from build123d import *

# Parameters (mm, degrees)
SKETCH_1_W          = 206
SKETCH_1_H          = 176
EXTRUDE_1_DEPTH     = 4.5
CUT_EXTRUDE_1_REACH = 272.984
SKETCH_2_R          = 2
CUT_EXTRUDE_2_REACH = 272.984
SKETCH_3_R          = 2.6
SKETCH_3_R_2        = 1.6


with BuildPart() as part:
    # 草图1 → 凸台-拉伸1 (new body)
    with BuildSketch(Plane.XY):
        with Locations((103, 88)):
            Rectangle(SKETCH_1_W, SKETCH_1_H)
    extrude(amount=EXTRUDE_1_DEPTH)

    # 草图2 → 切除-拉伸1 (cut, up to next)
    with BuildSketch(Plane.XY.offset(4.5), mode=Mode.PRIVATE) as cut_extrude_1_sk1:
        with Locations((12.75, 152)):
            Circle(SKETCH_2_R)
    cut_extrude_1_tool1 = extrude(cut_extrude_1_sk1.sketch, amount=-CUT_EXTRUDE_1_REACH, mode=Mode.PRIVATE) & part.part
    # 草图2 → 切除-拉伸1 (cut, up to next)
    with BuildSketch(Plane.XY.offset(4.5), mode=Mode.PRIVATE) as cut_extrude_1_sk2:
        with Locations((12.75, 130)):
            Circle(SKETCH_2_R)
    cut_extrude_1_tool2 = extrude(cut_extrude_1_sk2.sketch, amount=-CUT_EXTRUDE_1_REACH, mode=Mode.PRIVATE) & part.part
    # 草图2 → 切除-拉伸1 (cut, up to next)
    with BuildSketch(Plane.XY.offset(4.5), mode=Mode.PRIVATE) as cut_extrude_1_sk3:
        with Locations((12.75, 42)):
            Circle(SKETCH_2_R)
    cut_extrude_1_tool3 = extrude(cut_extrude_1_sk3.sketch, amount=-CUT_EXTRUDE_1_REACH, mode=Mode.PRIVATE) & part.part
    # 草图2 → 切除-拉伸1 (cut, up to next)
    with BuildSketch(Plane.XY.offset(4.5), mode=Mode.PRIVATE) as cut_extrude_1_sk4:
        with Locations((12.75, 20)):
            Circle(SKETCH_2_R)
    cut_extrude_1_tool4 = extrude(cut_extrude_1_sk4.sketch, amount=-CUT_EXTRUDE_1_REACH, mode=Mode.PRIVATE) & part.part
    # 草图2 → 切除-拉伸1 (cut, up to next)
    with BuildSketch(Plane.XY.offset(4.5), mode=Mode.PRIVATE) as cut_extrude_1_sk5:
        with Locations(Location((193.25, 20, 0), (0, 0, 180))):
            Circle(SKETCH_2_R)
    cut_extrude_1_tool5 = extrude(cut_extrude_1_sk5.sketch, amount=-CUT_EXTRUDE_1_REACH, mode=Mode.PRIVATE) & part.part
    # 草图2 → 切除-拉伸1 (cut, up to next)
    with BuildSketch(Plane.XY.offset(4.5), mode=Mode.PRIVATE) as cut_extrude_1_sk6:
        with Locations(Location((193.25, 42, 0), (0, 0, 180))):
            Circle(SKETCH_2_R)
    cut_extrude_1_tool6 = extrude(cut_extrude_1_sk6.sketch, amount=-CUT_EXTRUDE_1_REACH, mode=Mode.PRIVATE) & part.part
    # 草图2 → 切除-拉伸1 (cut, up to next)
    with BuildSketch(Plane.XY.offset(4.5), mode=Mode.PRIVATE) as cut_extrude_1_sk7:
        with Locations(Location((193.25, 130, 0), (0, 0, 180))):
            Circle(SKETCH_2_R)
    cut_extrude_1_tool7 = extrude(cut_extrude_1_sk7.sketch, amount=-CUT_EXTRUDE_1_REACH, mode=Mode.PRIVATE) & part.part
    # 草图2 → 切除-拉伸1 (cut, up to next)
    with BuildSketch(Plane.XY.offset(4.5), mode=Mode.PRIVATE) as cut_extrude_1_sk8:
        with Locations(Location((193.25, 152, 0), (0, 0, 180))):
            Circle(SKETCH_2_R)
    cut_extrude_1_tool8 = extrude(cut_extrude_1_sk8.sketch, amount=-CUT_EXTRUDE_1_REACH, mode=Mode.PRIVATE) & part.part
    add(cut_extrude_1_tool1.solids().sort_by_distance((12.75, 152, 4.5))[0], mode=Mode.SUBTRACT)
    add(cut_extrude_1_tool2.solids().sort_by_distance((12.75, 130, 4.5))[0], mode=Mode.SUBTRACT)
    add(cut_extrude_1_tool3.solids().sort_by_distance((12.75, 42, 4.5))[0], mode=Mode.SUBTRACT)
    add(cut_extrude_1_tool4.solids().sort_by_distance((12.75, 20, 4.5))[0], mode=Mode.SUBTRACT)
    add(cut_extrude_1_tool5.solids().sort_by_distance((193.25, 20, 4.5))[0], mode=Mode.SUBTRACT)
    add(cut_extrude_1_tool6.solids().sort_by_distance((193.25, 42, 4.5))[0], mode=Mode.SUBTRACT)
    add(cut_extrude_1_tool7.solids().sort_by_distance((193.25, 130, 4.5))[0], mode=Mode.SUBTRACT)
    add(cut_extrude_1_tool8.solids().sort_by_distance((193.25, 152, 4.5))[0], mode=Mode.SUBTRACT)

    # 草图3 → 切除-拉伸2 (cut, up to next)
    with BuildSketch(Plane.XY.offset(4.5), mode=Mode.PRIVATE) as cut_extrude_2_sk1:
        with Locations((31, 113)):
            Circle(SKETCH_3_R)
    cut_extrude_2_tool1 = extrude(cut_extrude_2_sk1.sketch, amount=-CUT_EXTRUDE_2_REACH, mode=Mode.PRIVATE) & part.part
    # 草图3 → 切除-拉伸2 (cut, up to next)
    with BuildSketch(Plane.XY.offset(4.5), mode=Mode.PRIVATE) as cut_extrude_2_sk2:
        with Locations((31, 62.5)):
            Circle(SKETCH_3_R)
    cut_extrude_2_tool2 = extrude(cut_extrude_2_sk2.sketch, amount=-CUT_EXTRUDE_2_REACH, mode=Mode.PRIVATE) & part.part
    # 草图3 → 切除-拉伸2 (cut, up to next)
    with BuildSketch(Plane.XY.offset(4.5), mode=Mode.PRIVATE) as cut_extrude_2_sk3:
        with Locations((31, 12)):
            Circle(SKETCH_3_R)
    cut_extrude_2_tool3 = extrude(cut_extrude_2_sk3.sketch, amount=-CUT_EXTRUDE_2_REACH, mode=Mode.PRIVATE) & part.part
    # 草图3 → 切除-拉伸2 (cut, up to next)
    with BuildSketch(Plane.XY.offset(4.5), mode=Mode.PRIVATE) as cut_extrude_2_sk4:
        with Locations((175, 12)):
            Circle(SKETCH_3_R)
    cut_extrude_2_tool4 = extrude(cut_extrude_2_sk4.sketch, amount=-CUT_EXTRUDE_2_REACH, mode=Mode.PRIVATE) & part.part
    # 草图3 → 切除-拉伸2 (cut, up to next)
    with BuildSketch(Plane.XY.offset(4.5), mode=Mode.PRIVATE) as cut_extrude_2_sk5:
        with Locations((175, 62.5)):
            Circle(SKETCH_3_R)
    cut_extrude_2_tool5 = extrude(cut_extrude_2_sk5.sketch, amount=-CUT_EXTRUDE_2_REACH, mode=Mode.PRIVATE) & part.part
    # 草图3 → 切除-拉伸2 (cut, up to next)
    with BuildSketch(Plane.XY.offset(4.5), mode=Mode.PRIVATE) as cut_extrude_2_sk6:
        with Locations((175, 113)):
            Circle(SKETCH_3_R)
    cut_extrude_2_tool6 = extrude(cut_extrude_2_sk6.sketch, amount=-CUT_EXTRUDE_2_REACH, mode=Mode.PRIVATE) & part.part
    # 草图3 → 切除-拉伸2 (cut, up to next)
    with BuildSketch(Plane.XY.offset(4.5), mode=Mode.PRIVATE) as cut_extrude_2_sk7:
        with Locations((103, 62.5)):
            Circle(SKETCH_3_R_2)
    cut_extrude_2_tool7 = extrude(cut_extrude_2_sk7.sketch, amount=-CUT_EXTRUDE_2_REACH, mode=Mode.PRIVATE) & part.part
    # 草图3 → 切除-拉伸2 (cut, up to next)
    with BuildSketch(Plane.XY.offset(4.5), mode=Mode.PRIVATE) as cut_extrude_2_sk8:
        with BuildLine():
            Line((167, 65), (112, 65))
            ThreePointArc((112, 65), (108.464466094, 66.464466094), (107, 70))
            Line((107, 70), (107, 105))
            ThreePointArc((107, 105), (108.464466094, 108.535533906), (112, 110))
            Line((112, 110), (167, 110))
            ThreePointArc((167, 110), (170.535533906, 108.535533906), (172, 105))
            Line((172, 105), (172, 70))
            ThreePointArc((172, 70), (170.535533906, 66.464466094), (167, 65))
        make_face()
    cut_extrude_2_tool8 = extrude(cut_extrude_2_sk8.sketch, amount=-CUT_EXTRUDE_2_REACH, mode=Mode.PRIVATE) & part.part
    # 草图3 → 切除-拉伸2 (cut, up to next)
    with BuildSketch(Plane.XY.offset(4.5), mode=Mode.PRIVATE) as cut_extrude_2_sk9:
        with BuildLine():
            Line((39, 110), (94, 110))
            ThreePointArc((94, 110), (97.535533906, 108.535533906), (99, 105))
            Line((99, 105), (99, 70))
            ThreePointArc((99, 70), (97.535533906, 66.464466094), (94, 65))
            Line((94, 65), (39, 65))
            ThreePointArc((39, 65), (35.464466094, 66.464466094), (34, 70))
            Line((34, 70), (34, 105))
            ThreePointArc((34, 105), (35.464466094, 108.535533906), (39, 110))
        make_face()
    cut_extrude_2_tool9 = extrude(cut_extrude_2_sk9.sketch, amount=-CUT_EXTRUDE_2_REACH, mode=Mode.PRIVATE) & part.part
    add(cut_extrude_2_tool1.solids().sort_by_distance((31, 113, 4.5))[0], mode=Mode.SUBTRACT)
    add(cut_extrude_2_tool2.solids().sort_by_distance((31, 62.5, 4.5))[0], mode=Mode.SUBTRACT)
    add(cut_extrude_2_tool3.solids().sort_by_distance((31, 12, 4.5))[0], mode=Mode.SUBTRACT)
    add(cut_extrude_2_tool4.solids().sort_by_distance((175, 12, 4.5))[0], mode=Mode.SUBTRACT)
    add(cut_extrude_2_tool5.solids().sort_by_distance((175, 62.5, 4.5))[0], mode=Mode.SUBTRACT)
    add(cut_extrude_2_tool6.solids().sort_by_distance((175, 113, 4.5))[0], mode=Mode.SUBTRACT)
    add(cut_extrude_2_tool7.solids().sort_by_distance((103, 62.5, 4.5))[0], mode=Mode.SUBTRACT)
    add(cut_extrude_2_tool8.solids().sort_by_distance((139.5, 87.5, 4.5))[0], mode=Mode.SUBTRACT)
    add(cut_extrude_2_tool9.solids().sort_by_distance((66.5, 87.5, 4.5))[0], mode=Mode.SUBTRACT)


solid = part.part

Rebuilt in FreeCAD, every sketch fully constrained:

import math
import FreeCAD as App
import Part
import Sketcher

V = App.Vector


def add_polygon(sketch, points):
    """Adds a closed chain of lines whose ends are joined by coincident constraints."""
    first, n = sketch.GeometryCount, len(points)
    for a, b in zip(points, points[1:] + points[:1]):
        sketch.addGeometry(Part.LineSegment(App.Vector(*a, 0), App.Vector(*b, 0)), False)
    for i in range(n):
        sketch.addConstraint(Sketcher.Constraint("Coincident", first + i, 2, first + (i + 1) % n, 1))

doc = App.newDocument("Part")
body = doc.addObject("PartDesign::Body", "Body")

sketch1 = doc.addObject("Sketcher::SketchObject", "Sketch")
body.addObject(sketch1)
sketch1.AttachmentSupport = (doc.XY_Plane, [""])
sketch1.MapMode = "FlatFace"
add_polygon(sketch1, [(0, 176), (0, 0), (206, 0), (206, 176)])
sketch1.addConstraint(Sketcher.Constraint("Vertical", 0))
sketch1.addConstraint(Sketcher.Constraint("Horizontal", 1))
sketch1.addConstraint(Sketcher.Constraint("Vertical", 2))
sketch1.addConstraint(Sketcher.Constraint("Horizontal", 3))
sketch1.addConstraint(Sketcher.Constraint("Coincident", 0, 2, -1, 1))
sketch1.addConstraint(Sketcher.Constraint("DistanceX", 1, 1, 1, 2, 206.0))
sketch1.addConstraint(Sketcher.Constraint("DistanceY", 0, 2, 0, 1, 176.0))
pad1 = doc.addObject("PartDesign::Pad", "Pad")
body.addObject(pad1)
pad1.Profile = sketch1
pad1.Length = 4.5

sketch2 = doc.addObject("Sketcher::SketchObject", "Sketch001")
body.addObject(sketch2)
sketch2.AttachmentSupport = (doc.XY_Plane, [""])
sketch2.MapMode = "FlatFace"
sketch2.AttachmentOffset = App.Placement(V(0, 0, 4.5), App.Rotation())
sketch2.addGeometry(Part.Circle(V(12.8, 152, 0), V(0, 0, 1), 2), False)
sketch2.addConstraint(Sketcher.Constraint("Diameter", 0, 4.0))
sketch2.addConstraint(Sketcher.Constraint("DistanceY", -1, 1, 0, 3, 152.0))
sketch2.addConstraint(Sketcher.Constraint("DistanceX", -1, 1, 0, 3, 12.75))
pocket1 = doc.addObject("PartDesign::Pocket", "Pocket")
body.addObject(pocket1)
pocket1.Profile = sketch2
pocket1.Type = "UpToFirst"

sketch3 = doc.addObject("Sketcher::SketchObject", "Sketch002")
body.addObject(sketch3)
sketch3.AttachmentSupport = (doc.XY_Plane, [""])
sketch3.MapMode = "FlatFace"
sketch3.AttachmentOffset = App.Placement(V(0, 0, 4.5), App.Rotation())
sketch3.addGeometry(Part.Circle(V(12.8, 130, 0), V(0, 0, 1), 2), False)
sketch3.addConstraint(Sketcher.Constraint("Diameter", 0, 4.0))
sketch3.addConstraint(Sketcher.Constraint("DistanceY", -1, 1, 0, 3, 130.0))
sketch3.addConstraint(Sketcher.Constraint("DistanceX", -1, 1, 0, 3, 12.75))
pocket2 = doc.addObject("PartDesign::Pocket", "Pocket001")
body.addObject(pocket2)
pocket2.Profile = sketch3
pocket2.Type = "UpToFirst"

sketch4 = doc.addObject("Sketcher::SketchObject", "Sketch003")
body.addObject(sketch4)
sketch4.AttachmentSupport = (doc.XY_Plane, [""])
sketch4.MapMode = "FlatFace"
sketch4.AttachmentOffset = App.Placement(V(0, 0, 4.5), App.Rotation())
sketch4.addGeometry(Part.Circle(V(12.8, 42, 0), V(0, 0, 1), 2), False)
sketch4.addConstraint(Sketcher.Constraint("Diameter", 0, 4.0))
sketch4.addConstraint(Sketcher.Constraint("DistanceY", -1, 1, 0, 3, 42.0))
sketch4.addConstraint(Sketcher.Constraint("DistanceX", -1, 1, 0, 3, 12.75))
pocket3 = doc.addObject("PartDesign::Pocket", "Pocket002")
body.addObject(pocket3)
pocket3.Profile = sketch4
pocket3.Type = "UpToFirst"

sketch5 = doc.addObject("Sketcher::SketchObject", "Sketch004")
body.addObject(sketch5)
sketch5.AttachmentSupport = (doc.XY_Plane, [""])
sketch5.MapMode = "FlatFace"
sketch5.AttachmentOffset = App.Placement(V(0, 0, 4.5), App.Rotation())
sketch5.addGeometry(Part.Circle(V(12.8, 20, 0), V(0, 0, 1), 2), False)
sketch5.addConstraint(Sketcher.Constraint("Diameter", 0, 4.0))
sketch5.addConstraint(Sketcher.Constraint("DistanceY", -1, 1, 0, 3, 20.0))
sketch5.addConstraint(Sketcher.Constraint("DistanceX", -1, 1, 0, 3, 12.75))
pocket4 = doc.addObject("PartDesign::Pocket", "Pocket003")
body.addObject(pocket4)
pocket4.Profile = sketch5
pocket4.Type = "UpToFirst"

sketch6 = doc.addObject("Sketcher::SketchObject", "Sketch005")
body.addObject(sketch6)
sketch6.AttachmentSupport = (doc.XY_Plane, [""])
sketch6.MapMode = "FlatFace"
sketch6.AttachmentOffset = App.Placement(V(0, 0, 4.5), App.Rotation())
sketch6.addGeometry(Part.Circle(V(193.2, 20, 0), V(0, 0, 1), 2), False)
sketch6.addConstraint(Sketcher.Constraint("Diameter", 0, 4.0))
sketch6.addConstraint(Sketcher.Constraint("DistanceY", -1, 1, 0, 3, 20.0))
sketch6.addConstraint(Sketcher.Constraint("DistanceX", -1, 1, 0, 3, 193.25))
pocket5 = doc.addObject("PartDesign::Pocket", "Pocket004")
body.addObject(pocket5)
pocket5.Profile = sketch6
pocket5.Type = "UpToFirst"

sketch7 = doc.addObject("Sketcher::SketchObject", "Sketch006")
body.addObject(sketch7)
sketch7.AttachmentSupport = (doc.XY_Plane, [""])
sketch7.MapMode = "FlatFace"
sketch7.AttachmentOffset = App.Placement(V(0, 0, 4.5), App.Rotation())
sketch7.addGeometry(Part.Circle(V(193.2, 42, 0), V(0, 0, 1), 2), False)
sketch7.addConstraint(Sketcher.Constraint("Diameter", 0, 4.0))
sketch7.addConstraint(Sketcher.Constraint("DistanceY", -1, 1, 0, 3, 42.0))
sketch7.addConstraint(Sketcher.Constraint("DistanceX", -1, 1, 0, 3, 193.25))
pocket6 = doc.addObject("PartDesign::Pocket", "Pocket005")
body.addObject(pocket6)
pocket6.Profile = sketch7
pocket6.Type = "UpToFirst"

sketch8 = doc.addObject("Sketcher::SketchObject", "Sketch007")
body.addObject(sketch8)
sketch8.AttachmentSupport = (doc.XY_Plane, [""])
sketch8.MapMode = "FlatFace"
sketch8.AttachmentOffset = App.Placement(V(0, 0, 4.5), App.Rotation())
sketch8.addGeometry(Part.Circle(V(193.2, 130, 0), V(0, 0, 1), 2), False)
sketch8.addConstraint(Sketcher.Constraint("Diameter", 0, 4.0))
sketch8.addConstraint(Sketcher.Constraint("DistanceY", -1, 1, 0, 3, 130.0))
sketch8.addConstraint(Sketcher.Constraint("DistanceX", -1, 1, 0, 3, 193.25))
pocket7 = doc.addObject("PartDesign::Pocket", "Pocket006")
body.addObject(pocket7)
pocket7.Profile = sketch8
pocket7.Type = "UpToFirst"

sketch9 = doc.addObject("Sketcher::SketchObject", "Sketch008")
body.addObject(sketch9)
sketch9.AttachmentSupport = (doc.XY_Plane, [""])
sketch9.MapMode = "FlatFace"
sketch9.AttachmentOffset = App.Placement(V(0, 0, 4.5), App.Rotation())
sketch9.addGeometry(Part.Circle(V(193.2, 152, 0), V(0, 0, 1), 2), False)
sketch9.addConstraint(Sketcher.Constraint("Diameter", 0, 4.0))
sketch9.addConstraint(Sketcher.Constraint("DistanceY", -1, 1, 0, 3, 152.0))
sketch9.addConstraint(Sketcher.Constraint("DistanceX", -1, 1, 0, 3, 193.25))
pocket8 = doc.addObject("PartDesign::Pocket", "Pocket007")
body.addObject(pocket8)
pocket8.Profile = sketch9
pocket8.Type = "UpToFirst"

sketch10 = doc.addObject("Sketcher::SketchObject", "Sketch009")
body.addObject(sketch10)
sketch10.AttachmentSupport = (doc.XY_Plane, [""])
sketch10.MapMode = "FlatFace"
sketch10.AttachmentOffset = App.Placement(V(0, 0, 4.5), App.Rotation())
sketch10.addGeometry(Part.Circle(V(31, 113, 0), V(0, 0, 1), 2.6), False)
sketch10.addConstraint(Sketcher.Constraint("Diameter", 0, 5.2))
sketch10.addConstraint(Sketcher.Constraint("DistanceX", -1, 1, 0, 3, 31.0))
sketch10.addConstraint(Sketcher.Constraint("DistanceY", -1, 1, 0, 3, 113.0))
pocket9 = doc.addObject("PartDesign::Pocket", "Pocket008")
body.addObject(pocket9)
pocket9.Profile = sketch10
pocket9.Type = "UpToFirst"

sketch11 = doc.addObject("Sketcher::SketchObject", "Sketch010")
body.addObject(sketch11)
sketch11.AttachmentSupport = (doc.XY_Plane, [""])
sketch11.MapMode = "FlatFace"
sketch11.AttachmentOffset = App.Placement(V(0, 0, 4.5), App.Rotation())
sketch11.addGeometry(Part.Circle(V(31, 62.5, 0), V(0, 0, 1), 2.6), False)
sketch11.addConstraint(Sketcher.Constraint("Diameter", 0, 5.2))
sketch11.addConstraint(Sketcher.Constraint("DistanceX", -1, 1, 0, 3, 31.0))
sketch11.addConstraint(Sketcher.Constraint("DistanceY", -1, 1, 0, 3, 62.5))
pocket10 = doc.addObject("PartDesign::Pocket", "Pocket009")
body.addObject(pocket10)
pocket10.Profile = sketch11
pocket10.Type = "UpToFirst"

sketch12 = doc.addObject("Sketcher::SketchObject", "Sketch011")
body.addObject(sketch12)
sketch12.AttachmentSupport = (doc.XY_Plane, [""])
sketch12.MapMode = "FlatFace"
sketch12.AttachmentOffset = App.Placement(V(0, 0, 4.5), App.Rotation())
sketch12.addGeometry(Part.Circle(V(31, 12, 0), V(0, 0, 1), 2.6), False)
sketch12.addConstraint(Sketcher.Constraint("Diameter", 0, 5.2))
sketch12.addConstraint(Sketcher.Constraint("DistanceX", -1, 1, 0, 3, 31.0))
sketch12.addConstraint(Sketcher.Constraint("DistanceY", -1, 1, 0, 3, 12.0))
pocket11 = doc.addObject("PartDesign::Pocket", "Pocket010")
body.addObject(pocket11)
pocket11.Profile = sketch12
pocket11.Type = "UpToFirst"

sketch13 = doc.addObject("Sketcher::SketchObject", "Sketch012")
body.addObject(sketch13)
sketch13.AttachmentSupport = (doc.XY_Plane, [""])
sketch13.MapMode = "FlatFace"
sketch13.AttachmentOffset = App.Placement(V(0, 0, 4.5), App.Rotation())
sketch13.addGeometry(Part.Circle(V(175, 12, 0), V(0, 0, 1), 2.6), False)
sketch13.addConstraint(Sketcher.Constraint("Diameter", 0, 5.2))
sketch13.addConstraint(Sketcher.Constraint("DistanceX", -1, 1, 0, 3, 175.0))
sketch13.addConstraint(Sketcher.Constraint("DistanceY", -1, 1, 0, 3, 12.0))
pocket12 = doc.addObject("PartDesign::Pocket", "Pocket011")
body.addObject(pocket12)
pocket12.Profile = sketch13
pocket12.Type = "UpToFirst"

sketch14 = doc.addObject("Sketcher::SketchObject", "Sketch013")
body.addObject(sketch14)
sketch14.AttachmentSupport = (doc.XY_Plane, [""])
sketch14.MapMode = "FlatFace"
sketch14.AttachmentOffset = App.Placement(V(0, 0, 4.5), App.Rotation())
sketch14.addGeometry(Part.Circle(V(175, 62.5, 0), V(0, 0, 1), 2.6), False)
sketch14.addConstraint(Sketcher.Constraint("Diameter", 0, 5.2))
sketch14.addConstraint(Sketcher.Constraint("DistanceX", -1, 1, 0, 3, 175.0))
sketch14.addConstraint(Sketcher.Constraint("DistanceY", -1, 1, 0, 3, 62.5))
pocket13 = doc.addObject("PartDesign::Pocket", "Pocket012")
body.addObject(pocket13)
pocket13.Profile = sketch14
pocket13.Type = "UpToFirst"

sketch15 = doc.addObject("Sketcher::SketchObject", "Sketch014")
body.addObject(sketch15)
sketch15.AttachmentSupport = (doc.XY_Plane, [""])
sketch15.MapMode = "FlatFace"
sketch15.AttachmentOffset = App.Placement(V(0, 0, 4.5), App.Rotation())
sketch15.addGeometry(Part.Circle(V(175, 113, 0), V(0, 0, 1), 2.6), False)
sketch15.addConstraint(Sketcher.Constraint("Diameter", 0, 5.2))
sketch15.addConstraint(Sketcher.Constraint("DistanceX", -1, 1, 0, 3, 175.0))
sketch15.addConstraint(Sketcher.Constraint("DistanceY", -1, 1, 0, 3, 113.0))
pocket14 = doc.addObject("PartDesign::Pocket", "Pocket013")
body.addObject(pocket14)
pocket14.Profile = sketch15
pocket14.Type = "UpToFirst"

sketch16 = doc.addObject("Sketcher::SketchObject", "Sketch015")
body.addObject(sketch16)
sketch16.AttachmentSupport = (doc.XY_Plane, [""])
sketch16.MapMode = "FlatFace"
sketch16.AttachmentOffset = App.Placement(V(0, 0, 4.5), App.Rotation())
sketch16.addGeometry(Part.Circle(V(103, 62.5, 0), V(0, 0, 1), 1.6), False)
sketch16.addConstraint(Sketcher.Constraint("Diameter", 0, 3.2))
sketch16.addConstraint(Sketcher.Constraint("DistanceX", -1, 1, 0, 3, 103.0))
sketch16.addConstraint(Sketcher.Constraint("DistanceY", -1, 1, 0, 3, 62.5))
pocket15 = doc.addObject("PartDesign::Pocket", "Pocket014")
body.addObject(pocket15)
pocket15.Profile = sketch16
pocket15.Type = "UpToFirst"

sketch17 = doc.addObject("Sketcher::SketchObject", "Sketch016")
body.addObject(sketch17)
sketch17.AttachmentSupport = (doc.XY_Plane, [""])
sketch17.MapMode = "FlatFace"
sketch17.AttachmentOffset = App.Placement(V(0, 0, 4.5), App.Rotation())
sketch17.addGeometry(Part.LineSegment(V(112, 65, 0), V(167, 65, 0)), False)
sketch17.addGeometry(Part.ArcOfCircle(Part.Circle(V(167, 70, 0), V(0, 0, 1), 5), math.radians(-90), math.radians(0)), False)
sketch17.addGeometry(Part.LineSegment(V(172, 70, 0), V(172, 105, 0)), False)
sketch17.addGeometry(Part.ArcOfCircle(Part.Circle(V(167, 105, 0), V(0, 0, 1), 5), math.radians(0), math.radians(90)), False)
sketch17.addGeometry(Part.LineSegment(V(167, 110, 0), V(112, 110, 0)), False)
sketch17.addGeometry(Part.ArcOfCircle(Part.Circle(V(112, 105, 0), V(0, 0, 1), 5), math.radians(90), math.radians(180)), False)
sketch17.addGeometry(Part.LineSegment(V(107, 105, 0), V(107, 70, 0)), False)
sketch17.addGeometry(Part.ArcOfCircle(Part.Circle(V(112, 70, 0), V(0, 0, 1), 5), math.radians(180), math.radians(270)), False)
sketch17.addConstraint(Sketcher.Constraint("Tangent", 0, 2, 1, 1))
sketch17.addConstraint(Sketcher.Constraint("Tangent", 1, 2, 2, 1))
sketch17.addConstraint(Sketcher.Constraint("Tangent", 2, 2, 3, 1))
sketch17.addConstraint(Sketcher.Constraint("Tangent", 3, 2, 4, 1))
sketch17.addConstraint(Sketcher.Constraint("Tangent", 4, 2, 5, 1))
sketch17.addConstraint(Sketcher.Constraint("Tangent", 5, 2, 6, 1))
sketch17.addConstraint(Sketcher.Constraint("Tangent", 6, 2, 7, 1))
sketch17.addConstraint(Sketcher.Constraint("Tangent", 7, 2, 0, 1))
sketch17.addConstraint(Sketcher.Constraint("Horizontal", 0))
sketch17.addConstraint(Sketcher.Constraint("Vertical", 2))
sketch17.addConstraint(Sketcher.Constraint("Horizontal", 4))
sketch17.addConstraint(Sketcher.Constraint("Vertical", 6))
sketch17.addConstraint(Sketcher.Constraint("Equal", 1, 3))
sketch17.addConstraint(Sketcher.Constraint("Equal", 3, 5))
sketch17.addConstraint(Sketcher.Constraint("Equal", 5, 7))
sketch17.addConstraint(Sketcher.Constraint("Radius", 1, 5.0))
sketch17.addConstraint(Sketcher.Constraint("DistanceX", 0, 1, 0, 2, 55.0))
sketch17.addConstraint(Sketcher.Constraint("DistanceY", 2, 1, 2, 2, 35.0))
sketch17.addConstraint(Sketcher.Constraint("DistanceX", -1, 1, 1, 3, 167.0))
sketch17.addConstraint(Sketcher.Constraint("DistanceY", -1, 1, 1, 3, 70.0))
pocket16 = doc.addObject("PartDesign::Pocket", "Pocket015")
body.addObject(pocket16)
pocket16.Profile = sketch17
pocket16.Type = "UpToFirst"

sketch18 = doc.addObject("Sketcher::SketchObject", "Sketch017")
body.addObject(sketch18)
sketch18.AttachmentSupport = (doc.XY_Plane, [""])
sketch18.MapMode = "FlatFace"
sketch18.AttachmentOffset = App.Placement(V(0, 0, 4.5), App.Rotation())
sketch18.addGeometry(Part.LineSegment(V(94, 110, 0), V(39, 110, 0)), False)
sketch18.addGeometry(Part.ArcOfCircle(Part.Circle(V(39, 105, 0), V(0, 0, 1), 5), math.radians(90), math.radians(180)), False)
sketch18.addGeometry(Part.LineSegment(V(34, 105, 0), V(34, 70, 0)), False)
sketch18.addGeometry(Part.ArcOfCircle(Part.Circle(V(39, 70, 0), V(0, 0, 1), 5), math.radians(180), math.radians(270)), False)
sketch18.addGeometry(Part.LineSegment(V(39, 65, 0), V(94, 65, 0)), False)
sketch18.addGeometry(Part.ArcOfCircle(Part.Circle(V(94, 70, 0), V(0, 0, 1), 5), math.radians(-90), math.radians(0)), False)
sketch18.addGeometry(Part.LineSegment(V(99, 70, 0), V(99, 105, 0)), False)
sketch18.addGeometry(Part.ArcOfCircle(Part.Circle(V(94, 105, 0), V(0, 0, 1), 5), math.radians(0), math.radians(90)), False)
sketch18.addConstraint(Sketcher.Constraint("Tangent", 0, 2, 1, 1))
sketch18.addConstraint(Sketcher.Constraint("Tangent", 1, 2, 2, 1))
sketch18.addConstraint(Sketcher.Constraint("Tangent", 2, 2, 3, 1))
sketch18.addConstraint(Sketcher.Constraint("Tangent", 3, 2, 4, 1))
sketch18.addConstraint(Sketcher.Constraint("Tangent", 4, 2, 5, 1))
sketch18.addConstraint(Sketcher.Constraint("Tangent", 5, 2, 6, 1))
sketch18.addConstraint(Sketcher.Constraint("Tangent", 6, 2, 7, 1))
sketch18.addConstraint(Sketcher.Constraint("Tangent", 7, 2, 0, 1))
sketch18.addConstraint(Sketcher.Constraint("Horizontal", 0))
sketch18.addConstraint(Sketcher.Constraint("Vertical", 2))
sketch18.addConstraint(Sketcher.Constraint("Horizontal", 4))
sketch18.addConstraint(Sketcher.Constraint("Vertical", 6))
sketch18.addConstraint(Sketcher.Constraint("Equal", 1, 3))
sketch18.addConstraint(Sketcher.Constraint("Equal", 3, 5))
sketch18.addConstraint(Sketcher.Constraint("Equal", 5, 7))
sketch18.addConstraint(Sketcher.Constraint("Radius", 1, 5.0))
sketch18.addConstraint(Sketcher.Constraint("DistanceX", 0, 2, 0, 1, 55.0))
sketch18.addConstraint(Sketcher.Constraint("DistanceY", 2, 2, 2, 1, 35.0))
sketch18.addConstraint(Sketcher.Constraint("DistanceX", -1, 1, 1, 3, 39.0))
sketch18.addConstraint(Sketcher.Constraint("DistanceY", -1, 1, 1, 3, 105.0))
pocket17 = doc.addObject("PartDesign::Pocket", "Pocket016")
body.addObject(pocket17)
pocket17.Profile = sketch18
pocket17.Type = "UpToFirst"

doc.recompute()
